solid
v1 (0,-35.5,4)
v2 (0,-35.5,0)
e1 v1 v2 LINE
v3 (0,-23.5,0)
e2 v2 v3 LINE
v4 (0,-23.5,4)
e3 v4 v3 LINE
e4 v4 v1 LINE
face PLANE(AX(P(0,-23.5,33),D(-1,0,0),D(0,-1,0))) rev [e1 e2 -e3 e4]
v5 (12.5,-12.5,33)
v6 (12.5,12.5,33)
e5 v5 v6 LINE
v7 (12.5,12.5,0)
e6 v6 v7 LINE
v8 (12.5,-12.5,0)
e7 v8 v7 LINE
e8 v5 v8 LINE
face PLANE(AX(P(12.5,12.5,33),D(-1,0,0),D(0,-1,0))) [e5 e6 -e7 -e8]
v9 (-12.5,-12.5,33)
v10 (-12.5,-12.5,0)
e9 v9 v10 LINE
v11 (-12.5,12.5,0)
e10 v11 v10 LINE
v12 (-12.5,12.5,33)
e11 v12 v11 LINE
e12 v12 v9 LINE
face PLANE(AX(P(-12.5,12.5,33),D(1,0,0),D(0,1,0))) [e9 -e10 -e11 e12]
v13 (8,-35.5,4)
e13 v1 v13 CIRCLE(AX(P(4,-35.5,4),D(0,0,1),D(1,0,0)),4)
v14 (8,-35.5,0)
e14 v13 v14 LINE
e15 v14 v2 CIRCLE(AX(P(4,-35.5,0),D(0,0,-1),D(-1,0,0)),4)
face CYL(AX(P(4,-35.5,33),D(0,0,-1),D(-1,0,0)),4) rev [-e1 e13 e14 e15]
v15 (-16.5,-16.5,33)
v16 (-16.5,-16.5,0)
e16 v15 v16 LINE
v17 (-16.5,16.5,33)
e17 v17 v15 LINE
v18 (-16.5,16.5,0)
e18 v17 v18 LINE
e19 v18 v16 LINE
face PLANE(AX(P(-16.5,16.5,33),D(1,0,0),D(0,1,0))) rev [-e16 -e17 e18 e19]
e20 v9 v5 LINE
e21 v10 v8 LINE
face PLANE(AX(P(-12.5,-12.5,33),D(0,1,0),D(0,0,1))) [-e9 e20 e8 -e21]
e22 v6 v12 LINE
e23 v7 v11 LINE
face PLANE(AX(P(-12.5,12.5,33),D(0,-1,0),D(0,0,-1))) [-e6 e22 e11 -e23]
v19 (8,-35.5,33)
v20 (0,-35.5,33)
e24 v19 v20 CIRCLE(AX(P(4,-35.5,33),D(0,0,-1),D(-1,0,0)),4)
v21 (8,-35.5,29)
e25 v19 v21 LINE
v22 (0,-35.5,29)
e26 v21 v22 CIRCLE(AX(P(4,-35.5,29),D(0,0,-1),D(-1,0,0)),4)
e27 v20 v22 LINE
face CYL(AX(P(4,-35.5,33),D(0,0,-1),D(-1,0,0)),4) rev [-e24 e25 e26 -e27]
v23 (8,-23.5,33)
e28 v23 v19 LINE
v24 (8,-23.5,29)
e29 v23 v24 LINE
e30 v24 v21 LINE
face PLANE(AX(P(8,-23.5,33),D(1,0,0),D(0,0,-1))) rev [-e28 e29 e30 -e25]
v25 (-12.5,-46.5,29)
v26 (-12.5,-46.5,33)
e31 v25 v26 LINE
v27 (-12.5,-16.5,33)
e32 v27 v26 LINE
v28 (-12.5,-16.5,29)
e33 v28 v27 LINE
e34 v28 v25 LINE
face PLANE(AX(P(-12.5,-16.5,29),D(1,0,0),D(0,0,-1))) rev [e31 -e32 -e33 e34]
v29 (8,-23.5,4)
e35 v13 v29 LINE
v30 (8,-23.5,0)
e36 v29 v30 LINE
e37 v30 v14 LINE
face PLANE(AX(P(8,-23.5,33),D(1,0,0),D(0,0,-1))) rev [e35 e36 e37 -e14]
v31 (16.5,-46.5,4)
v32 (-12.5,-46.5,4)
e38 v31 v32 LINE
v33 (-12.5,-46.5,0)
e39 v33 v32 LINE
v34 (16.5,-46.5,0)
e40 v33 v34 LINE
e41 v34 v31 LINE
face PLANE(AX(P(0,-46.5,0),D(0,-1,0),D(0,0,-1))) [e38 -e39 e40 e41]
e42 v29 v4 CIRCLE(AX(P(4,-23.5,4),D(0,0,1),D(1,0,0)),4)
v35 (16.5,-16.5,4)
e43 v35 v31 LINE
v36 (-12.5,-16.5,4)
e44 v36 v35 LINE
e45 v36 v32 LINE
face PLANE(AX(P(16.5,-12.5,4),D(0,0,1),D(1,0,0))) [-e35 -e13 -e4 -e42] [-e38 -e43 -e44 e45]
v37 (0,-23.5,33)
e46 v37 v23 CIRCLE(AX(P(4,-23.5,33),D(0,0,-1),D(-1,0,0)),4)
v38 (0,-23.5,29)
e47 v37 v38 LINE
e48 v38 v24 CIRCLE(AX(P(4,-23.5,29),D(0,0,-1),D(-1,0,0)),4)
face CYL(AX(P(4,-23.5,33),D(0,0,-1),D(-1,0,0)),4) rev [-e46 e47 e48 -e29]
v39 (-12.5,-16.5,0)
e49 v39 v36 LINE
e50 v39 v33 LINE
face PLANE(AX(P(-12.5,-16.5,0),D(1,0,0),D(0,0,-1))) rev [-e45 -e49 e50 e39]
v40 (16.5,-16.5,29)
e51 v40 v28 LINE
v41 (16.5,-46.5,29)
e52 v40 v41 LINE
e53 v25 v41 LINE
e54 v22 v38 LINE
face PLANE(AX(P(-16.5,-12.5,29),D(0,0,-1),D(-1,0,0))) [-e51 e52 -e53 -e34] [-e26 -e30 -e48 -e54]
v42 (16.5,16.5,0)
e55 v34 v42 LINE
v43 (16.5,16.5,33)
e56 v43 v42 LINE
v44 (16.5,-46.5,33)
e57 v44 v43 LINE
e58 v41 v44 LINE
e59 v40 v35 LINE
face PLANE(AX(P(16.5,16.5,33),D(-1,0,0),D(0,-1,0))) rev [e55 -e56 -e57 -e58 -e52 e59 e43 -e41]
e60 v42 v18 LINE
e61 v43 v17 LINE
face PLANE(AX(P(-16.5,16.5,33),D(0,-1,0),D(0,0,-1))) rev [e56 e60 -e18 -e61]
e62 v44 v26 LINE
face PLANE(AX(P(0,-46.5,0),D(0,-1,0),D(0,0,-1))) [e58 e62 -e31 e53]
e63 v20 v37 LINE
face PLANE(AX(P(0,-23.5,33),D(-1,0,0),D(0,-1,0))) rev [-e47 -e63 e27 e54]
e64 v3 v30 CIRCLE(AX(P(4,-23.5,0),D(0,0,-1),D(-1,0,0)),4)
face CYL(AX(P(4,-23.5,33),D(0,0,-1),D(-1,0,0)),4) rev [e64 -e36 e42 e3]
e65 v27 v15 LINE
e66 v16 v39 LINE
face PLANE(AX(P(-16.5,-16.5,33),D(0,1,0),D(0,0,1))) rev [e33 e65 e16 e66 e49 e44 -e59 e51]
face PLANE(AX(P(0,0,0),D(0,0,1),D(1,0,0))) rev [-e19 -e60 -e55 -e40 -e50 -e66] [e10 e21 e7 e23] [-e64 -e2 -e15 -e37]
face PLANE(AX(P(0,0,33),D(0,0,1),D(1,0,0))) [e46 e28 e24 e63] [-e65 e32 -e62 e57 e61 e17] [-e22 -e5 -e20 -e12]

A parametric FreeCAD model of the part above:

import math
import FreeCAD as App
import Part
import Sketcher

V = App.Vector
Q = App.Units.Quantity


def add_polygon(sketch, points):
    """Adds a closed chain of lines whose ends are joined by coincident constraints."""
    first, n = sketch.GeometryCount, len(points)
    for a, b in zip(points, points[1:] + points[:1]):
        sketch.addGeometry(Part.LineSegment(App.Vector(*a, 0), App.Vector(*b, 0)), False)
    for i in range(n):
        sketch.addConstraint(Sketcher.Constraint("Coincident", first + i, 2, first + (i + 1) % n, 1))

doc = App.newDocument("Part")
body = doc.addObject("PartDesign::Body", "Body")

# Sketch on XY plane
sketch1 = body.newObject("Sketcher::SketchObject", "Sketch")
sketch1.AttachmentSupport = (doc.getObject("XY_Plane"), [""])
sketch1.MapMode = "FlatFace"
add_polygon(sketch1, [(-16, 16), (-16, -16), (16, -16), (16, 16)])  # lines 0-3
add_polygon(sketch1, [(12, -12), (-12, -12), (-12, 12), (12, 12)])  # lines 4-7
sketch1.addConstraint([
    Sketcher.Constraint("Vertical", 0),
    Sketcher.Constraint("Horizontal", 1),
    Sketcher.Constraint("Vertical", 2),
    Sketcher.Constraint("Horizontal", 3),
    Sketcher.Constraint("Horizontal", 4),
    Sketcher.Constraint("Vertical", 5),
    Sketcher.Constraint("Horizontal", 6),
    Sketcher.Constraint("Vertical", 7),
    Sketcher.Constraint("Symmetric", 0, 2, 2, 2, -1, 1),
    Sketcher.Constraint("Symmetric", 4, 2, 6, 2, -1, 1),
    Sketcher.Constraint("Equal", 3, 0),
    Sketcher.Constraint("Equal", 6, 5),
    Sketcher.Constraint("DistanceX", 1, 1, 1, 2, Q("33 mm")),
    Sketcher.Constraint("DistanceX", 4, 2, 4, 1, Q("25 mm")),
])
pad1 = body.newObject("PartDesign::Pad", "Pad")
pad1.Profile = sketch1
pad1.Length = 33

# Sketch on XZ plane
sketch2 = body.newObject("Sketcher::SketchObject", "Sketch001")
sketch2.AttachmentSupport = (doc.getObject("XZ_Plane"), [""])
sketch2.MapMode = "FlatFace"
sketch2.AttachmentOffset = App.Placement(V(0, 0, 16.5), App.Rotation())
add_polygon(sketch2, [(-16.5, 33), (-16.5, 29), (16.5, 29), (16.5, 33)])  # lines 0-3
add_polygon(sketch2, [(-16.5, 4), (-16.5, 0), (16.5, 0), (16.5, 4)])  # lines 4-7
sketch2.addConstraint([
    Sketcher.Constraint("Vertical", 0),
    Sketcher.Constraint("Horizontal", 1),
    Sketcher.Constraint("Vertical", 2),
    Sketcher.Constraint("Horizontal", 3),
    Sketcher.Constraint("Vertical", 4),
    Sketcher.Constraint("Horizontal", 5),
    Sketcher.Constraint("Vertical", 6),
    Sketcher.Constraint("Horizontal", 7),
    Sketcher.Constraint("Symmetric", 4, 2, 5, 2, -1, 1),
    Sketcher.Constraint("Vertical", 3, 2, 4, 2),
    Sketcher.Constraint("Vertical", 2, 2, 5, 2),
    Sketcher.Constraint("Equal", 2, 4),
    Sketcher.Constraint("DistanceX", 1, 1, 1, 2, Q("33 mm")),
    Sketcher.Constraint("DistanceY", 0, 2, 0, 1, Q("4 mm")),
    Sketcher.Constraint("DistanceY", -1, 1, 0, 2, Q("29 mm")),
])
pad2 = body.newObject("PartDesign::Pad", "Pad001")
pad2.Profile = sketch2
pad2.Type = "TwoLengths"
pad2.Length = 30
pad2.Length2 = 4

# Sketch on XZ plane
sketch3 = body.newObject("Sketcher::SketchObject", "Sketch002")
sketch3.AttachmentSupport = (doc.getObject("XZ_Plane"), [""])
sketch3.MapMode = "FlatFace"
sketch3.AttachmentOffset = App.Placement(V(0, 0, 46.5), App.Rotation())
add_polygon(sketch3, [(-16.5, 33), (-16.5, 29), (-12.5, 29), (-12.5, 33)])  # lines 0-3
add_polygon(sketch3, [(-16.5, 4), (-16.5, 0), (-12.5, 0), (-12.5, 4)])  # lines 4-7
sketch3.addConstraint([
    Sketcher.Constraint("Vertical", 0),
    Sketcher.Constraint("Horizontal", 1),
    Sketcher.Constraint("Vertical", 2),
    Sketcher.Constraint("Horizontal", 3),
    Sketcher.Constraint("Vertical", 4),
    Sketcher.Constraint("Horizontal", 5),
    Sketcher.Constraint("Vertical", 6),
    Sketcher.Constraint("Horizontal", 7),
    Sketcher.Constraint("PointOnObject", 4, 2, -1),
    Sketcher.Constraint("Vertical", 3, 2, 4, 2),
    Sketcher.Constraint("Vertical", 2, 2, 5, 2),
    Sketcher.Constraint("Equal", 7, 0),
    Sketcher.Constraint("Equal", 2, 4),
    Sketcher.Constraint("DistanceX", 1, 1, 1, 2, Q("4 mm")),
    Sketcher.Constraint("DistanceY", -1, 1, 0, 2, Q("29 mm")),
    Sketcher.Constraint("DistanceX", 0, 2, -1, 1, Q("16.5 mm")),
])
pocket1 = body.newObject("PartDesign::Pocket", "Pocket")
pocket1.Profile = sketch3
pocket1.Length = 30

# Sketch on XY plane
sketch4 = body.newObject("Sketcher::SketchObject", "Sketch003")
sketch4.AttachmentSupport = (doc.getObject("XY_Plane"), [""])
sketch4.MapMode = "FlatFace"
sketch4.addGeometry([
    Part.LineSegment(V(8, -23.5, 0), V(8, -35.5, 0)),
    Part.ArcOfCircle(Part.Circle(V(4, -35.5, 0), V(0, 0, 1), 4), math.radians(180), math.radians(360)),
    Part.LineSegment(V(0, -35.5, 0), V(0, -23.5, 0)),
    Part.ArcOfCircle(Part.Circle(V(4, -23.5, 0), V(0, 0, 1), 4), math.radians(0), math.radians(180)),
], False)
sketch4.addConstraint([
    Sketcher.Constraint("Tangent", 0, 2, 1, 2),
    Sketcher.Constraint("Tangent", 1, 1, 2, 1),
    Sketcher.Constraint("Tangent", 2, 2, 3, 2),
    Sketcher.Constraint("Tangent", 3, 1, 0, 1),
    Sketcher.Constraint("Vertical", 0),
    Sketcher.Constraint("Vertical", 2),
    Sketcher.Constraint("PointOnObject", 1, 1, -2),
    Sketcher.Constraint("Radius", 1, Q("4 mm")),
    Sketcher.Constraint("DistanceY", 0, 2, 0, 1, Q("12 mm")),
    Sketcher.Constraint("DistanceY", 1, 3, -1, 1, Q("35.5 mm")),
])
pocket2 = body.newObject("PartDesign::Pocket", "Pocket001")
pocket2.Profile = sketch4
pocket2.Length = 33
pocket2.Reversed = True

doc.recompute()
